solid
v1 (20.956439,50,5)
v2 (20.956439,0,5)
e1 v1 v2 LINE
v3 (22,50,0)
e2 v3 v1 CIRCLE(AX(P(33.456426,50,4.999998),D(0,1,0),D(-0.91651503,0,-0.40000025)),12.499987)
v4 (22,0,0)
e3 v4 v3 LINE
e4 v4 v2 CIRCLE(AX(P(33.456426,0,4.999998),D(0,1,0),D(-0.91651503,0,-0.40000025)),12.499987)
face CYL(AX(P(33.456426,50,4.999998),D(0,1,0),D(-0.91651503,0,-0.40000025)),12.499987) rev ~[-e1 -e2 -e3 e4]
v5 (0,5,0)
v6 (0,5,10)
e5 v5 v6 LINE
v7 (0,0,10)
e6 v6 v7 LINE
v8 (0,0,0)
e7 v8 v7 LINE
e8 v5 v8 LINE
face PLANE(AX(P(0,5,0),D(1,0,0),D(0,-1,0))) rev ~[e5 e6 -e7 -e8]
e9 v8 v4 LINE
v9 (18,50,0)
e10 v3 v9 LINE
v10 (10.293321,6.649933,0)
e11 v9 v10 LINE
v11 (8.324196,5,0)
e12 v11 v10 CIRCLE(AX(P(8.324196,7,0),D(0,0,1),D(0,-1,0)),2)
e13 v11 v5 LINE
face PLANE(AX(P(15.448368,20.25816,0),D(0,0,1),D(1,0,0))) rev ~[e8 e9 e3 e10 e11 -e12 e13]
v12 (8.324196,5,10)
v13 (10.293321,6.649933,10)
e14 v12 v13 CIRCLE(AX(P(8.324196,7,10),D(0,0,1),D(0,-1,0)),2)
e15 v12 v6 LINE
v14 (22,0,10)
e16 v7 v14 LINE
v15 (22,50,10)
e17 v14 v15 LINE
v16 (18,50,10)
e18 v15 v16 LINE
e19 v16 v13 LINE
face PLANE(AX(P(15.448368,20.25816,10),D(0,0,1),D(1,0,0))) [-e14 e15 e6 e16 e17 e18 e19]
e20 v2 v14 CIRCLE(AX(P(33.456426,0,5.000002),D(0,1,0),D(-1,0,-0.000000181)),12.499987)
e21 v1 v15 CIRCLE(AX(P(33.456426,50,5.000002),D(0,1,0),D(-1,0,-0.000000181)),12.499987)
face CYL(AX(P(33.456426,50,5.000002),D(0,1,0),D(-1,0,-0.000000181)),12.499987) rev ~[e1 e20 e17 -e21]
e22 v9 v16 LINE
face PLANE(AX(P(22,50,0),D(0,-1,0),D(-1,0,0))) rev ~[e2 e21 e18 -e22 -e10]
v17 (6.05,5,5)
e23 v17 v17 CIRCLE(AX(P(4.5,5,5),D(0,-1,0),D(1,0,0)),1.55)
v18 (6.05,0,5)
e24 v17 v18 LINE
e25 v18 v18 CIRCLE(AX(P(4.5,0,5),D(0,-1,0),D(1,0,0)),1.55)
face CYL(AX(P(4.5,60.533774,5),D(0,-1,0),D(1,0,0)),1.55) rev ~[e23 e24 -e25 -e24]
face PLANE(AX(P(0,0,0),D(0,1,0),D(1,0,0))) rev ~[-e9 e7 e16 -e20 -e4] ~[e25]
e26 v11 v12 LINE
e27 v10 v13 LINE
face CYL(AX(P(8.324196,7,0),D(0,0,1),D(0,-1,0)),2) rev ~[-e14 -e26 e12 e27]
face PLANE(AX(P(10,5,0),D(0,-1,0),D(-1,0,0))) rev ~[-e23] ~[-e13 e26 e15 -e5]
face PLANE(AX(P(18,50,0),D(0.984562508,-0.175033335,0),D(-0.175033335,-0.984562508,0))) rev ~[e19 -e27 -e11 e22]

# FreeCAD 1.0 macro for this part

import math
import FreeCAD as App
import Part
import Sketcher

V = App.Vector


def edges_at(feature, points):
    """Names of the edges that pass closest to the given points."""
    edges = feature.Shape.Edges
    near = lambda p: min(range(len(edges)), key=lambda i: edges[i].distToShape(Part.Vertex(*p))[0])
    return sorted({f"Edge{near(p) + 1}" for p in points})

doc = App.newDocument("Part")
body = doc.addObject("PartDesign::Body", "Body")

sketch1 = body.newObject("Sketcher::SketchObject", "Sketch")
sketch1.AttachmentSupport = (doc.getObject("XY_Plane"), [""])
sketch1.MapMode = "FlatFace"
sketch1.addGeometry(Part.LineSegment(V(0, 5, 0), V(0, 0, 0)), False)
sketch1.addGeometry(Part.LineSegment(V(0, 0, 0), V(22, 0, 0)), False)
sketch1.addGeometry(Part.LineSegment(V(22, 0, 0), V(22, 50, 0)), False)
sketch1.addGeometry(Part.LineSegment(V(22, 50, 0), V(18, 50, 0)), False)
sketch1.addGeometry(Part.LineSegment(V(18, 50, 0), V(10, 5, 0)), False)
sketch1.addGeometry(Part.LineSegment(V(10, 5, 0), V(0, 5, 0)), False)
sketch1.addConstraint(Sketcher.Constraint("Coincident", 0, 2, 1, 1))
sketch1.addConstraint(Sketcher.Constraint("Coincident", 1, 2, 2, 1))
sketch1.addConstraint(Sketcher.Constraint("Coincident", 2, 2, 3, 1))
sketch1.addConstraint(Sketcher.Constraint("Coincident", 3, 2, 4, 1))
sketch1.addConstraint(Sketcher.Constraint("Coincident", 4, 2, 5, 1))
sketch1.addConstraint(Sketcher.Constraint("Coincident", 5, 2, 0, 1))
sketch1.addConstraint(Sketcher.Constraint("Vertical", 0))
sketch1.addConstraint(Sketcher.Constraint("Horizontal", 1))
sketch1.addConstraint(Sketcher.Constraint("Vertical", 2))
sketch1.addConstraint(Sketcher.Constraint("Horizontal", 3))
sketch1.addConstraint(Sketcher.Constraint("Horizontal", 5))
sketch1.addConstraint(Sketcher.Constraint("Coincident", 0, 2, -1, 1))
sketch1.addConstraint(Sketcher.Constraint("DistanceX", 1, 1, 1, 2, 22.0))
sketch1.addConstraint(Sketcher.Constraint("DistanceX", 3, 2, 3, 1, 4.0))
sketch1.addConstraint(Sketcher.Constraint("DistanceX", 5, 2, 5, 1, 10.0))
sketch1.addConstraint(Sketcher.Constraint("DistanceY", 0, 2, 0, 1, 5.0))
sketch1.addConstraint(Sketcher.Constraint("DistanceY", 2, 1, 2, 2, 50.0))
pad1 = body.newObject("PartDesign::Pad", "Pad")
pad1.Profile = sketch1
pad1.Length = 10

sketch2 = body.newObject("Sketcher::SketchObject", "Sketch001")
sketch2.AttachmentSupport = (doc.getObject("XZ_Plane"), [""])
sketch2.MapMode = "FlatFace"
sketch2.AttachmentOffset = App.Placement(V(0, 0, -50), App.Rotation())
sketch2.addGeometry(Part.ArcOfCircle(Part.Circle(V(33, 5, 0), V(0, 0, 1), 12), math.radians(-156), math.radians(156)), False)
sketch2.addGeometry(Part.ArcOfCircle(Part.Circle(V(33, 5, 0), V(0, 0, 1), 12), math.radians(180), math.radians(204)), False)
sketch2.addGeometry(Part.ArcOfCircle(Part.Circle(V(33, 5, 0), V(0, 0, 1), 12), math.radians(156), math.radians(180)), False)
sketch2.addConstraint(Sketcher.Constraint("Tangent", 0, 1, 1, 2))
sketch2.addConstraint(Sketcher.Constraint("Tangent", 1, 1, 2, 2))
sketch2.addConstraint(Sketcher.Constraint("Tangent", 2, 1, 0, 2))
sketch2.addConstraint(Sketcher.Constraint("PointOnObject", 0, 1, -1))
sketch2.addConstraint(Sketcher.Constraint("Horizontal", 0, 3, 1, 1))
sketch2.addConstraint(Sketcher.Constraint("Vertical", 0, 1, 2, 1))
sketch2.addConstraint(Sketcher.Constraint("Radius", 0, 12.5))
sketch2.addConstraint(Sketcher.Constraint("DistanceY", -1, 1, 0, 3, 5.0))
sketch2.addConstraint(Sketcher.Constraint("DistanceX", -1, 1, 0, 1, 22.0))
pocket1 = body.newObject("PartDesign::Pocket", "Pocket")
pocket1.Profile = sketch2
pocket1.Type = "ThroughAll"
pocket1.Reversed = True

sketch3 = body.newObject("Sketcher::SketchObject", "Sketch002")
sketch3.AttachmentSupport = (doc.getObject("XZ_Plane"), [""])
sketch3.MapMode = "FlatFace"
sketch3.AttachmentOffset = App.Placement(V(0, 0, -5), App.Rotation())
sketch3.addGeometry(Part.Circle(V(4.5, 5, 0), V(0, 0, 1), 1.6), False)
sketch3.addConstraint(Sketcher.Constraint("Diameter", 0, 3.1))
sketch3.addConstraint(Sketcher.Constraint("DistanceY", -1, 1, 0, 3, 5.0))
sketch3.addConstraint(Sketcher.Constraint("DistanceX", -1, 1, 0, 3, 4.5))
doc.recompute()
hole = body.newObject("PartDesign::Hole", "Hole")
hole.Profile = sketch3
hole.ThreadType = "None"
hole.Diameter = 3.1
hole.DepthType = "ThroughAll"
hole.Reversed = True
doc.recompute()

fillet = body.newObject("PartDesign::Fillet", "Fillet")
fillet.Base = (hole, edges_at(hole, [(10, 5, 5)]))
fillet.Radius = 2

doc.recompute()
